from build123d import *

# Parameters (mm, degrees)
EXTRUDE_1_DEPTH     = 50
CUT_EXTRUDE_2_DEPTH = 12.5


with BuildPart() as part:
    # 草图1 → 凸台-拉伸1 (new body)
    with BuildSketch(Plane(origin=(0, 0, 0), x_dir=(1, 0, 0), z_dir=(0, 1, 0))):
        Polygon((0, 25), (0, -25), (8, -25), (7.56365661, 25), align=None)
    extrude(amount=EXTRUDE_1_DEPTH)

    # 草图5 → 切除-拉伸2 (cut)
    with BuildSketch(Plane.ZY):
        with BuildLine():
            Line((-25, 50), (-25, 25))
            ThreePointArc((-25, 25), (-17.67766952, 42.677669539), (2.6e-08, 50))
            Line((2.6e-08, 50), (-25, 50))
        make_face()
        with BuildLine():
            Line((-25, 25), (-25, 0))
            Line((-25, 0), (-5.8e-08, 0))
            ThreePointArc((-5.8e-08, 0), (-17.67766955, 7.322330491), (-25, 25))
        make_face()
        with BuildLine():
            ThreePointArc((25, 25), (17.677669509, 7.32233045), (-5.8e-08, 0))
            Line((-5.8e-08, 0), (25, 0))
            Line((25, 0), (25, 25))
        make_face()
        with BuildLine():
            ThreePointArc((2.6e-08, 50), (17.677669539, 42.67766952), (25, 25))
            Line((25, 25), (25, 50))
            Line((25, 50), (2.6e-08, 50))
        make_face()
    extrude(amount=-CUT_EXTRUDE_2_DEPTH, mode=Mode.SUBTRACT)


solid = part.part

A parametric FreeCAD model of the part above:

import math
import FreeCAD as App
import Part
import Sketcher

V = App.Vector
Q = App.Units.Quantity


def add_polygon(sketch, points):
    """Adds a closed chain of lines whose ends are joined by coincident constraints."""
    first, n = sketch.GeometryCount, len(points)
    for a, b in zip(points, points[1:] + points[:1]):
        sketch.addGeometry(Part.LineSegment(App.Vector(*a, 0), App.Vector(*b, 0)), False)
    for i in range(n):
        sketch.addConstraint(Sketcher.Constraint("Coincident", first + i, 2, first + (i + 1) % n, 1))

doc = App.newDocument("Part")
body = doc.addObject("PartDesign::Body", "Body")

# Sketch on XZ plane
sketch1 = doc.addObject("Sketcher::SketchObject", "Sketch")
body.addObject(sketch1)
sketch1.AttachmentSupport = (doc.XZ_Plane, [""])
sketch1.MapMode = "FlatFace"
add_polygon(sketch1, [(0, -25), (0, 25), (8, 25), (8, -25)])  # lines 0-3
sketch1.addConstraint([
    Sketcher.Constraint("Vertical", 0),
    Sketcher.Constraint("Horizontal", 1),
    Sketcher.Constraint("Horizontal", 3),
    Sketcher.Constraint("Symmetric", 0, 2, 3, 2, -1, 1),
    Sketcher.Constraint("DistanceX", 1, 1, 1, 2, Q("8 mm")),
    Sketcher.Constraint("DistanceY", 0, 1, 0, 2, Q("50 mm")),
    Sketcher.Constraint("Angle", 2, Q("-90.5 deg")),
])
pad1 = doc.addObject("PartDesign::Pad", "Pad")
body.addObject(pad1)
pad1.Profile = sketch1
pad1.Length = 50
pad1.Reversed = True

# Sketch on YZ plane
sketch2 = doc.addObject("Sketcher::SketchObject", "Sketch001")
body.addObject(sketch2)
sketch2.AttachmentSupport = (doc.YZ_Plane, [""])
sketch2.MapMode = "FlatFace"
sketch2.addGeometry([
    Part.LineSegment(V(50, -25, 0), V(25, -25, 0)),  # 0
    Part.ArcOfCircle(Part.Circle(V(25, 0, 0), V(0, 0, 1), 25), math.radians(-90), math.radians(0)),  # 1
    Part.LineSegment(V(50, 0, 0), V(50, -25, 0)),  # 2
    Part.LineSegment(V(25, -25, 0), V(0, -25, 0)),  # 3
    Part.LineSegment(V(0, -25, 0), V(0, 0, 0)),  # 4
    Part.ArcOfCircle(Part.Circle(V(25, 0, 0), V(0, 0, 1), 25), math.radians(-180), math.radians(-90)),  # 5
    Part.ArcOfCircle(Part.Circle(V(25, 0, 0), V(0, 0, 1), 25), math.radians(90), math.radians(180)),  # 6
    Part.LineSegment(V(0, 0, 0), V(0, 25, 0)),  # 7
    Part.LineSegment(V(0, 25, 0), V(25, 25, 0)),  # 8
    Part.ArcOfCircle(Part.Circle(V(25, 0, 0), V(0, 0, 1), 25), math.radians(0), math.radians(90)),  # 9
    Part.LineSegment(V(25, 25, 0), V(50, 25, 0)),  # 10
    Part.LineSegment(V(50, 25, 0), V(50, 0, 0)),  # 11
], False)
sketch2.addConstraint([
    Sketcher.Constraint("Tangent", 0, 2, 1, 1),
    Sketcher.Constraint("Tangent", 1, 2, 2, 1),
    Sketcher.Constraint("Coincident", 2, 2, 0, 1),
    Sketcher.Constraint("Coincident", 3, 2, 4, 1),
    Sketcher.Constraint("Tangent", 4, 2, 5, 1),
    Sketcher.Constraint("Tangent", 5, 2, 3, 1),
    Sketcher.Constraint("Tangent", 6, 2, 7, 1),
    Sketcher.Constraint("Coincident", 7, 2, 8, 1),
    Sketcher.Constraint("Tangent", 8, 2, 6, 1),
    Sketcher.Constraint("Tangent", 9, 2, 10, 1),
    Sketcher.Constraint("Coincident", 10, 2, 11, 1),
    Sketcher.Constraint("Tangent", 11, 2, 9, 1),
    Sketcher.Constraint("Horizontal", 0),
    Sketcher.Constraint("Vertical", 2),
    Sketcher.Constraint("Horizontal", 3),
    Sketcher.Constraint("Vertical", 4),
    Sketcher.Constraint("Vertical", 7),
    Sketcher.Constraint("Horizontal", 8),
    Sketcher.Constraint("Horizontal", 10),
    Sketcher.Constraint("Vertical", 11),
    Sketcher.Constraint("Coincident", 4, 2, -1, 1),
    Sketcher.Constraint("Coincident", 6, 2, -1, 1),
    Sketcher.Constraint("Coincident", 5, 3, 1, 3),
    Sketcher.Constraint("Coincident", 9, 3, 1, 3),
    Sketcher.Constraint("Coincident", 9, 2, 8, 2),
    Sketcher.Constraint("Equal", 1, 5),
    Sketcher.Constraint("Radius", 1, Q("25 mm")),
])
pocket1 = doc.addObject("PartDesign::Pocket", "Pocket")
body.addObject(pocket1)
pocket1.Profile = sketch2
pocket1.Length = 12.5
pocket1.Reversed = True

doc.recompute()
